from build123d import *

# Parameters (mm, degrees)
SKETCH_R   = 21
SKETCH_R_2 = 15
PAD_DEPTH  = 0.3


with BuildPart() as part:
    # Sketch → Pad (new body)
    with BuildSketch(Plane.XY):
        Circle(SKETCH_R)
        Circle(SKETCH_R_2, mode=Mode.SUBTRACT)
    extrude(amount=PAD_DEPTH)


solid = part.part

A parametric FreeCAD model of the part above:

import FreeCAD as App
import Part
import Sketcher

V = App.Vector
Q = App.Units.Quantity

doc = App.newDocument("Part")
params = doc.addObject("Spreadsheet::Sheet", "Params")
for row, (alias, value) in enumerate([
    ("sketch1_diameter", "42 mm"),
    ("sketch1_diameter2", "30 mm"),
    ("pad1_length", "0.3 mm"),
], start=1):
    params.set(f"A{row}", alias)
    params.set(f"B{row}", "=" + value)
    params.setAlias(f"B{row}", alias)

body = doc.addObject("PartDesign::Body", "Body")

# Sketch on XY plane
sketch1 = body.newObject("Sketcher::SketchObject", "Sketch")
sketch1.AttachmentSupport = (doc.getObject("XY_Plane"), [""])
sketch1.MapMode = "FlatFace"
sketch1.addGeometry([
    Part.Circle(V(0, 0, 0), V(0, 0, 1), 21),
    Part.Circle(V(0, 0, 0), V(0, 0, 1), 15),
], False)
sketch1.addConstraint([
    Sketcher.Constraint("Coincident", 0, 3, -1, 1),
    Sketcher.Constraint("Coincident", 1, 3, -1, 1),
    Sketcher.Constraint("Diameter", 0, Q("42 mm")),
    Sketcher.Constraint("Diameter", 1, Q("30 mm")),
])
sketch1.setExpression("Constraints[2]", "Params.sketch1_diameter")
sketch1.setExpression("Constraints[3]", "Params.sketch1_diameter2")
pad1 = body.newObject("PartDesign::Pad", "Pad")
pad1.Profile = sketch1
pad1.setExpression("Length", "Params.pad1_length")

doc.recompute()
